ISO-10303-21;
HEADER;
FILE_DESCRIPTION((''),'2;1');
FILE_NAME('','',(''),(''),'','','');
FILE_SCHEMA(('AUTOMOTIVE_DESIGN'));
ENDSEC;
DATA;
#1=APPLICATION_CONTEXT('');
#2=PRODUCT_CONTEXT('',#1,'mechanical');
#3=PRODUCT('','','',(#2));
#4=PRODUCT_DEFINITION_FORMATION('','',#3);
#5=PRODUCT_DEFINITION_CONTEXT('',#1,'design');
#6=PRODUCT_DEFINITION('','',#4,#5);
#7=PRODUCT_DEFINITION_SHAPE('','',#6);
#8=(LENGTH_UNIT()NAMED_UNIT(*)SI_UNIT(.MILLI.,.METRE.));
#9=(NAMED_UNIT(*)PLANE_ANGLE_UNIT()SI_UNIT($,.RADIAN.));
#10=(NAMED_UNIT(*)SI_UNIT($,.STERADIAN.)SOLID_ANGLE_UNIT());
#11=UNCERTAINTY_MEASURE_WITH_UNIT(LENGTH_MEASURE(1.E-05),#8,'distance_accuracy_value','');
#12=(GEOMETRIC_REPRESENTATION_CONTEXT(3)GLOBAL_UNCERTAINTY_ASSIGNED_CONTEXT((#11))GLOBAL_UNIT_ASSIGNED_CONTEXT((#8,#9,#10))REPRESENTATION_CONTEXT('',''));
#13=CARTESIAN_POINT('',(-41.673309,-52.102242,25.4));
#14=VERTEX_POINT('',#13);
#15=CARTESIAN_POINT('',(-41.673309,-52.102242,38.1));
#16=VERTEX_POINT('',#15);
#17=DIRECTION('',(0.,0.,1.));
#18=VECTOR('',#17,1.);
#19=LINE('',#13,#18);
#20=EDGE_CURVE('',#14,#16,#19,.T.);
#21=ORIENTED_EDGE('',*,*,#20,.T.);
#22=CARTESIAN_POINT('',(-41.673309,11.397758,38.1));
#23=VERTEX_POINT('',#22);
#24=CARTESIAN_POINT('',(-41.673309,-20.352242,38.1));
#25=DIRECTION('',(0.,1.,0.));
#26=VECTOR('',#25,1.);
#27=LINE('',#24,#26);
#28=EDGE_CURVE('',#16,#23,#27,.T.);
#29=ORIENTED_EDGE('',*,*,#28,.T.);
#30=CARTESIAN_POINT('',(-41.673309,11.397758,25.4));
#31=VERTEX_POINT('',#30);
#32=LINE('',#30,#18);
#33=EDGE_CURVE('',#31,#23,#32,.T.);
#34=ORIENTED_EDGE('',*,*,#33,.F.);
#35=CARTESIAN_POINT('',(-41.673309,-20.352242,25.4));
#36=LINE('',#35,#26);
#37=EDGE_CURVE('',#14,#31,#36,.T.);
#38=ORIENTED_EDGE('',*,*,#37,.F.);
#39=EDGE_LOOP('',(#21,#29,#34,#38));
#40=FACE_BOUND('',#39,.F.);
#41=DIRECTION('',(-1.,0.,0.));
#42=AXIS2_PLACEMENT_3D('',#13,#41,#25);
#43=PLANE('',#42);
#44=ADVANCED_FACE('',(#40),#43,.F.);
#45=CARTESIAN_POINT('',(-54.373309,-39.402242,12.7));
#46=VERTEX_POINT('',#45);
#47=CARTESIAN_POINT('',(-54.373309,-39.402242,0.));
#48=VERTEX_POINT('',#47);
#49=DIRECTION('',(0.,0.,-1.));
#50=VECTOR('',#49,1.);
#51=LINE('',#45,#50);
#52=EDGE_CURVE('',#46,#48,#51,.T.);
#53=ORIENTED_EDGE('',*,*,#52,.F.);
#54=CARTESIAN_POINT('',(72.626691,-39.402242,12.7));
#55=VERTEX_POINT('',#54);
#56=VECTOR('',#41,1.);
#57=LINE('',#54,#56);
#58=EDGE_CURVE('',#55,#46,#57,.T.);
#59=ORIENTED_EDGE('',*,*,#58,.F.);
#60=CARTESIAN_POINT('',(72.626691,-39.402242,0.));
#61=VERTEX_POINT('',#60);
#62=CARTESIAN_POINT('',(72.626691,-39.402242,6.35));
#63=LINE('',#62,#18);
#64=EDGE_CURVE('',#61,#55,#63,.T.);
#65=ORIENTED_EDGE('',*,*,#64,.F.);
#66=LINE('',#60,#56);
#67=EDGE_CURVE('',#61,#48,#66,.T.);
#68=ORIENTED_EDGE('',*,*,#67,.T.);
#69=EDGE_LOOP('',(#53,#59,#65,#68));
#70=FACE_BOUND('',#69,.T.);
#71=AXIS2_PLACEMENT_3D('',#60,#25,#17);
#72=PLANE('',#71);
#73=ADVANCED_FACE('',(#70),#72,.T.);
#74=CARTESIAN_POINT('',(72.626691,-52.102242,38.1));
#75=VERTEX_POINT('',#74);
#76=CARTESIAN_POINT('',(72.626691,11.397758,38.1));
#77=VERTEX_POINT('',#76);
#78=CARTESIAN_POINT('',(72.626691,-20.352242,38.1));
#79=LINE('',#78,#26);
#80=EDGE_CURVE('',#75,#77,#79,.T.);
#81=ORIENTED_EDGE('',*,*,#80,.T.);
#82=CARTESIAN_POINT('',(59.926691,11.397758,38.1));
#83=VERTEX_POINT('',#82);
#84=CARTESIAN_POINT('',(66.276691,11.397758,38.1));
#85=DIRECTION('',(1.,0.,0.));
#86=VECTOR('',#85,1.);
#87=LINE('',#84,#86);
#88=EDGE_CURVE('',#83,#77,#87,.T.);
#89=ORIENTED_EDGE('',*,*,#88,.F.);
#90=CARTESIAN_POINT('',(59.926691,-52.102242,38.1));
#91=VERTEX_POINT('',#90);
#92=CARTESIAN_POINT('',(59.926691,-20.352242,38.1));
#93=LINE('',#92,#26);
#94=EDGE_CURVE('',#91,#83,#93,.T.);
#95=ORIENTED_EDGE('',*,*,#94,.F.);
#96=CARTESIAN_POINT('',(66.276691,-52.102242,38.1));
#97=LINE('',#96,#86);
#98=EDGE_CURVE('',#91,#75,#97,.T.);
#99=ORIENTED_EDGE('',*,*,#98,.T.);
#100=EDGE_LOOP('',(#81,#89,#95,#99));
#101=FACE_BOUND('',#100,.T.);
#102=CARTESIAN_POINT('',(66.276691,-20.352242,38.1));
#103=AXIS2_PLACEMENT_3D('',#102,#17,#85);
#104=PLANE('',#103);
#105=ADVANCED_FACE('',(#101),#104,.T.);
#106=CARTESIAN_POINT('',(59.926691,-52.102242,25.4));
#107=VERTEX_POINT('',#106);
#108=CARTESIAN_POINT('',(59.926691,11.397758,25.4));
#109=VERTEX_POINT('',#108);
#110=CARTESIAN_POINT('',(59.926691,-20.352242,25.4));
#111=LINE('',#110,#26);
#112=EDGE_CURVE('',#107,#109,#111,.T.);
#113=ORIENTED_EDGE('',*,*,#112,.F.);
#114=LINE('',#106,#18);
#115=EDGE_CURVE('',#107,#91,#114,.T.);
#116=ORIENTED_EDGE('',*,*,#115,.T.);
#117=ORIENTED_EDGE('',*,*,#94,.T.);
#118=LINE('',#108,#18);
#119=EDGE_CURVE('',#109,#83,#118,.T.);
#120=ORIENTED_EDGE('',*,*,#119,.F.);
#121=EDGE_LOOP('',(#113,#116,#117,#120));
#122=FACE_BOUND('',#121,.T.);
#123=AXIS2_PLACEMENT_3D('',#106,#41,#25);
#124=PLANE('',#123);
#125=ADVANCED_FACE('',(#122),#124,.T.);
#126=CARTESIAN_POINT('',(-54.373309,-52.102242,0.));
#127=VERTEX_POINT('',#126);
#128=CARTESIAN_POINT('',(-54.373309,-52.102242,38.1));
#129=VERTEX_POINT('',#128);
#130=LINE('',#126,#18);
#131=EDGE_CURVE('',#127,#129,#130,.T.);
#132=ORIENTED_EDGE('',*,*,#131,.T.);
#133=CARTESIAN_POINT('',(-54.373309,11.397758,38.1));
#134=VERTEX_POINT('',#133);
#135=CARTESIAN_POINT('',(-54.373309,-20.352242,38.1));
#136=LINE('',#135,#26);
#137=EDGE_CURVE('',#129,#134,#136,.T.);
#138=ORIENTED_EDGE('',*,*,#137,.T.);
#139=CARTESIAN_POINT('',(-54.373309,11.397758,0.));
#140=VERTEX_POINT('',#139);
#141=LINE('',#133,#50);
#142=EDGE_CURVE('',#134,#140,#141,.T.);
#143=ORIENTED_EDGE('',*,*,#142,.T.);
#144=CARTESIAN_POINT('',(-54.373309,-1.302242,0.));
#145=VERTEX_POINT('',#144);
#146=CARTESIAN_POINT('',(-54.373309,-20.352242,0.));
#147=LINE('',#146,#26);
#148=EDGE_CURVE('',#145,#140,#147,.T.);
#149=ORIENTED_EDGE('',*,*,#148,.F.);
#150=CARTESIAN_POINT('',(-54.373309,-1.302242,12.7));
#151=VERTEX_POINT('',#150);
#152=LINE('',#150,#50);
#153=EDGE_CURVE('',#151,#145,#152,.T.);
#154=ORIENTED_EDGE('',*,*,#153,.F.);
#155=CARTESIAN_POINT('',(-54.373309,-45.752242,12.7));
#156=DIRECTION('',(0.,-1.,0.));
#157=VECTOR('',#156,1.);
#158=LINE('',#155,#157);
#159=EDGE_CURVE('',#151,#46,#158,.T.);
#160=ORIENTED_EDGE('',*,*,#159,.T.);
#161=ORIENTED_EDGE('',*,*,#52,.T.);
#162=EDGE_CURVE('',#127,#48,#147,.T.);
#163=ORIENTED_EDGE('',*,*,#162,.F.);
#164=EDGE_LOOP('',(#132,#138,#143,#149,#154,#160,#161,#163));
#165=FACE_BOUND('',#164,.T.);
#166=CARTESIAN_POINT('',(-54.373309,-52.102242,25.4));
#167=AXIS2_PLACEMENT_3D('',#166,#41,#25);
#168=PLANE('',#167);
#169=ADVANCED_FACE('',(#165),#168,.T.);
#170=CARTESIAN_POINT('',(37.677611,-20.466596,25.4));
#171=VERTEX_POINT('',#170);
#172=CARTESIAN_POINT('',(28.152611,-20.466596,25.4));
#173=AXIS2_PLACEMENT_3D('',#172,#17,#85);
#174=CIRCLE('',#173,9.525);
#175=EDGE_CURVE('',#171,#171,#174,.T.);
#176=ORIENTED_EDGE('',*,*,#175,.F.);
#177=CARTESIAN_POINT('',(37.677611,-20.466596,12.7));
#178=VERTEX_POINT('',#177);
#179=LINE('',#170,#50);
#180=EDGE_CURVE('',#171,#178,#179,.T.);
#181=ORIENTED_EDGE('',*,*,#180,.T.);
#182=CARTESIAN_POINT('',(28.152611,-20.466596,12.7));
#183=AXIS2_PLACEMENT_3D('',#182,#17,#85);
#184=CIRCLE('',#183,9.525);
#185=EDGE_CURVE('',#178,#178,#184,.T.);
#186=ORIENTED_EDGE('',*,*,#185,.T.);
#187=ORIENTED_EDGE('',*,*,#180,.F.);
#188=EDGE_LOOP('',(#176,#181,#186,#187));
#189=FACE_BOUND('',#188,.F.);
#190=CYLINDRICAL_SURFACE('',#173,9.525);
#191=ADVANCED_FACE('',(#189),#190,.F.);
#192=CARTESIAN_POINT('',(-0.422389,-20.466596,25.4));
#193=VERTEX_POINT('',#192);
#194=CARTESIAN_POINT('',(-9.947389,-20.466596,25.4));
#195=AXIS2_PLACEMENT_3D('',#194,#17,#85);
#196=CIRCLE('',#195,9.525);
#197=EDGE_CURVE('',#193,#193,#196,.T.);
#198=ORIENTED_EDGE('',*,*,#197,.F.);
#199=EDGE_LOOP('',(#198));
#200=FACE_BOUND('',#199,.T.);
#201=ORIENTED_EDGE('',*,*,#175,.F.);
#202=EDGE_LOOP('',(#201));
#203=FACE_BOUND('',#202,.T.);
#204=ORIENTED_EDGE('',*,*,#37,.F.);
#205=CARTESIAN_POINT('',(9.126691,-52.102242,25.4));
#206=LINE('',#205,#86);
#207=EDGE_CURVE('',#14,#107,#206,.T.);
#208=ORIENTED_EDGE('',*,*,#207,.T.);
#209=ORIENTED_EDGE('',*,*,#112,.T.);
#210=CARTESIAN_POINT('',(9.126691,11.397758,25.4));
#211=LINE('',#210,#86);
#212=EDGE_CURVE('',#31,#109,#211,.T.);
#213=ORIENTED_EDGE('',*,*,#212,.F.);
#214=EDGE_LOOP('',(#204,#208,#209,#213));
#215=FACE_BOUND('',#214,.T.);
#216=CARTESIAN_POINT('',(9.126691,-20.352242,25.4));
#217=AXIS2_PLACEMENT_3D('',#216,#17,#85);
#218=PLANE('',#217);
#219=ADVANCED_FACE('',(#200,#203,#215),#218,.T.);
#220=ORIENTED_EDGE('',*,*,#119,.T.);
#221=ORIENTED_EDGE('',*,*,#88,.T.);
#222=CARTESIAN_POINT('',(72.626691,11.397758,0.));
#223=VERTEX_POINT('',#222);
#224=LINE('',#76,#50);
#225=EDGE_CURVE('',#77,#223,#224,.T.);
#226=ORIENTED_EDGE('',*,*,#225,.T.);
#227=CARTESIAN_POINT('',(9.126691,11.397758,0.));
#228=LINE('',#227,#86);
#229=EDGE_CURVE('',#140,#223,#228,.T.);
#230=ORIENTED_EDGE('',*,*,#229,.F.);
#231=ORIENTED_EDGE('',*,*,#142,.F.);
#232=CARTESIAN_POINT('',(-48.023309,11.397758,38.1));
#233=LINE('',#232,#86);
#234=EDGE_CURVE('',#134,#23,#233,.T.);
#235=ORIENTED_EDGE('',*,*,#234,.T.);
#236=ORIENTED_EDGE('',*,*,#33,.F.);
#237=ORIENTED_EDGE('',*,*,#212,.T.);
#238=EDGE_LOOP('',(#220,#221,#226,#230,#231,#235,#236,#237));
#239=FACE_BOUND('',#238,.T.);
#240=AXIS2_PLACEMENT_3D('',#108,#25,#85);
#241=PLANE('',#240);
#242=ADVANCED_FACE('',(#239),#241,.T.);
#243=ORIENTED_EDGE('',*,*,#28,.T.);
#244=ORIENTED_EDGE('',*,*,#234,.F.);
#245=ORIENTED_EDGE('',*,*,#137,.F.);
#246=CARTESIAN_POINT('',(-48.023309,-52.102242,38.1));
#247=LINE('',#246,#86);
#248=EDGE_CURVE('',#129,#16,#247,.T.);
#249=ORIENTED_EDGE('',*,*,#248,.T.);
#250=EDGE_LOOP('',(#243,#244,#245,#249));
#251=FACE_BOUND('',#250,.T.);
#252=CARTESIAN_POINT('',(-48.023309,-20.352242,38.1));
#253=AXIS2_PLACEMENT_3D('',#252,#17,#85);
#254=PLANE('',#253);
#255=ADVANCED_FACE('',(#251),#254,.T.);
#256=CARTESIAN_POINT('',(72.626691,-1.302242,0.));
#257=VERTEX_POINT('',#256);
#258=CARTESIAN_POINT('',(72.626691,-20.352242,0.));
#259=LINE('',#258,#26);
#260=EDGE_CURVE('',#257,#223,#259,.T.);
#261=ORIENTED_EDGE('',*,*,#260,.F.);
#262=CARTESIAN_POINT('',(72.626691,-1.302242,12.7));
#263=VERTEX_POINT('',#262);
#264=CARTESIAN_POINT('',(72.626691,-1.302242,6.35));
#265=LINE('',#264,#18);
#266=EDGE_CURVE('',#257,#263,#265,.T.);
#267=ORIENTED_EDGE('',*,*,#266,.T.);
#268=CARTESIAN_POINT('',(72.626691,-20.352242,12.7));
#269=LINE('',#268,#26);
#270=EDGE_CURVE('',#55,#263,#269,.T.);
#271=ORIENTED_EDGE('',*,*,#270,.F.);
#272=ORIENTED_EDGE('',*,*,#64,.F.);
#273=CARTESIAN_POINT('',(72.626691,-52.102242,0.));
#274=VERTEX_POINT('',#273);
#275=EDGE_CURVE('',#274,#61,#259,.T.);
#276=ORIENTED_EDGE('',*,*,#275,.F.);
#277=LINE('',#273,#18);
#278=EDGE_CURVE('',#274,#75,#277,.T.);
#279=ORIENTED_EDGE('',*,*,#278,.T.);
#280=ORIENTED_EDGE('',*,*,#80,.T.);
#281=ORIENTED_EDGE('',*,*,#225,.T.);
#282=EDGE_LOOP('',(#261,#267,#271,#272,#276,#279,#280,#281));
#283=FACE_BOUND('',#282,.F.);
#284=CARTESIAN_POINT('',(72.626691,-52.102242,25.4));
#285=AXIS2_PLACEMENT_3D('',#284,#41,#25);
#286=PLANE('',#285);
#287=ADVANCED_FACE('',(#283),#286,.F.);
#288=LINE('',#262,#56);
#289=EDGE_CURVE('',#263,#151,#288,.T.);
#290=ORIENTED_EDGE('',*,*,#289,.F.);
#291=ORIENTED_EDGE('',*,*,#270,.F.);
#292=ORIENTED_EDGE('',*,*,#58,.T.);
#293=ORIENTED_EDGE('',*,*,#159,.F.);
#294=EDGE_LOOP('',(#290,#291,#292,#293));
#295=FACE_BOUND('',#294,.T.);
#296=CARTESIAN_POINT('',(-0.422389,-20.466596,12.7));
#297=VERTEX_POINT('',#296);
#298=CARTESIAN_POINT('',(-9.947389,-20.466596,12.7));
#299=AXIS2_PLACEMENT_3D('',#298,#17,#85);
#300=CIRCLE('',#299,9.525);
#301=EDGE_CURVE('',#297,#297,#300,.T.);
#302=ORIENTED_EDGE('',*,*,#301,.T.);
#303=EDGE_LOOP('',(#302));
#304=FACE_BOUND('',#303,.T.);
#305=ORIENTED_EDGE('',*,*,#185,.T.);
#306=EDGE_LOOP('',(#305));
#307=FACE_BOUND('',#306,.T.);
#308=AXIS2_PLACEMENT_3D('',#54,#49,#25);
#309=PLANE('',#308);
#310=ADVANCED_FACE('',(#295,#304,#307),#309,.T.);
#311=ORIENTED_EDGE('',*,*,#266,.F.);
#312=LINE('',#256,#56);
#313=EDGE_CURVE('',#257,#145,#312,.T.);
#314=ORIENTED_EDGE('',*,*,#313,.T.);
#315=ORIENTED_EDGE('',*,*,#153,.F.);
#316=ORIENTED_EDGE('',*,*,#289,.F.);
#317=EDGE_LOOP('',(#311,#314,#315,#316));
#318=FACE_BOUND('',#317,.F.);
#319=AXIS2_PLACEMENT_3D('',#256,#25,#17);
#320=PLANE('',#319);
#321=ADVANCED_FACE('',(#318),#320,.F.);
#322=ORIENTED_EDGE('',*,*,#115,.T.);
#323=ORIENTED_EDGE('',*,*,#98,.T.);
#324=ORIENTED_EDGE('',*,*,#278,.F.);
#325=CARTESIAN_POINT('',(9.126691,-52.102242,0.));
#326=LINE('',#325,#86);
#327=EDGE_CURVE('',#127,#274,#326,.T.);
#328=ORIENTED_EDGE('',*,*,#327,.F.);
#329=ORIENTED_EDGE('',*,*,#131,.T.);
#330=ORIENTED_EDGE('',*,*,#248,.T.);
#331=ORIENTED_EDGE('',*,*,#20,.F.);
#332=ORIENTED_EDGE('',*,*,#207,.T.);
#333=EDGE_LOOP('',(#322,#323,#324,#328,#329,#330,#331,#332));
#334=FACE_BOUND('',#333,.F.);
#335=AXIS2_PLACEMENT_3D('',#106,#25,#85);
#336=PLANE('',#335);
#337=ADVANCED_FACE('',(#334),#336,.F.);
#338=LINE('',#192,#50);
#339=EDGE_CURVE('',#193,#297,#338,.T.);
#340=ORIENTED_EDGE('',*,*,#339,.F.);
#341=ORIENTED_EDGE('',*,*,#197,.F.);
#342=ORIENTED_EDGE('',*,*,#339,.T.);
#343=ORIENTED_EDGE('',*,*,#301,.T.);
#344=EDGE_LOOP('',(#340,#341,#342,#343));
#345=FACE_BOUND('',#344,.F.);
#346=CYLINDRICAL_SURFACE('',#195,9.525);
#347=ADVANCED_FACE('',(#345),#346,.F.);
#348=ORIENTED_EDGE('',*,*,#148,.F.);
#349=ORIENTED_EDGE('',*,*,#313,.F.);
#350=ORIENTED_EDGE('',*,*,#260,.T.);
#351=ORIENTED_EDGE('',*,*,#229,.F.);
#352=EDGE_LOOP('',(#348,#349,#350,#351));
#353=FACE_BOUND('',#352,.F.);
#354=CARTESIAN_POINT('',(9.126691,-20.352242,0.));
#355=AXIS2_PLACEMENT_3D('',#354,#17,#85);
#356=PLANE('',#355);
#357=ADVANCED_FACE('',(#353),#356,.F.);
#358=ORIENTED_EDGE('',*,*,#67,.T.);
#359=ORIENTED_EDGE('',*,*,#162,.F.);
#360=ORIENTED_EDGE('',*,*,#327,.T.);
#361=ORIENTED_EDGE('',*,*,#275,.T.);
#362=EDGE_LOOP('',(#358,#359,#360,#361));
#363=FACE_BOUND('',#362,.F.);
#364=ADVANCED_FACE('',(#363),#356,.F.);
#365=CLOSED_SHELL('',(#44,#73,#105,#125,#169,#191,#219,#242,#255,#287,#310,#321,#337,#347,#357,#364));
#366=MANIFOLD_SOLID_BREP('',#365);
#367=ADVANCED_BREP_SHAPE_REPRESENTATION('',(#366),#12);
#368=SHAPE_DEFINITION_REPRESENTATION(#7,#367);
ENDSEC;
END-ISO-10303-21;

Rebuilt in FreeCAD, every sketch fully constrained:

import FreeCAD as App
import Part
import Sketcher
from FreeCAD import Vector
Q = App.Units.Quantity

doc = App.newDocument("Part")
body = doc.addObject("PartDesign::Body", "Body")

# Sketch on XY plane
sketch1 = body.newObject("Sketcher::SketchObject", "Sketch")
sketch1.AttachmentSupport = (doc.getObject("XY_Plane"), [""])
sketch1.MapMode = "FlatFace"
sketch1.addGeometry(Part.LineSegment(Vector(-54, 11, 0), Vector(-54, -52, 0)), False)
sketch1.addGeometry(Part.LineSegment(Vector(-54, -52, 0), Vector(73, -52, 0)), False)
sketch1.addGeometry(Part.LineSegment(Vector(73, -52, 0), Vector(73, 11, 0)), False)
sketch1.addGeometry(Part.LineSegment(Vector(73, 11, 0), Vector(-54, 11, 0)), False)
sketch1.addConstraint(Sketcher.Constraint("Coincident", 0, 2, 1, 1))
sketch1.addConstraint(Sketcher.Constraint("Coincident", 1, 2, 2, 1))
sketch1.addConstraint(Sketcher.Constraint("Coincident", 2, 2, 3, 1))
sketch1.addConstraint(Sketcher.Constraint("Coincident", 3, 2, 0, 1))
sketch1.addConstraint(Sketcher.Constraint("Vertical", 0))
sketch1.addConstraint(Sketcher.Constraint("Horizontal", 1))
sketch1.addConstraint(Sketcher.Constraint("Vertical", 2))
sketch1.addConstraint(Sketcher.Constraint("Horizontal", 3))
sketch1.addConstraint(Sketcher.Constraint("DistanceX", 1, 1, 1, 2, Q("5 in")))
sketch1.addConstraint(Sketcher.Constraint("DistanceY", 0, 2, 0, 1, Q("2.5 in")))
sketch1.addConstraint(Sketcher.Constraint("DistanceX", 0, 2, -1, 1, Q("54.373309 mm")))
sketch1.addConstraint(Sketcher.Constraint("DistanceY", 0, 2, -1, 1, Q("52.102242 mm")))
pad1 = body.newObject("PartDesign::Pad", "Pad")
pad1.Profile = sketch1
pad1.Length = Q("1 in")

# Sketch on XY plane
sketch2 = body.newObject("Sketcher::SketchObject", "Sketch001")
sketch2.AttachmentSupport = (doc.getObject("XY_Plane"), [""])
sketch2.MapMode = "FlatFace"
sketch2.AttachmentOffset = App.Placement(Vector(0, 0, 1 * 25.4), App.Rotation())
sketch2.addGeometry(Part.LineSegment(Vector(-54, 11, 0), Vector(-54, -52, 0)), False)
sketch2.addGeometry(Part.LineSegment(Vector(-54, -52, 0), Vector(-42, -52, 0)), False)
sketch2.addGeometry(Part.LineSegment(Vector(-42, -52, 0), Vector(-42, 11, 0)), False)
sketch2.addGeometry(Part.LineSegment(Vector(-42, 11, 0), Vector(-54, 11, 0)), False)
sketch2.addConstraint(Sketcher.Constraint("Coincident", 0, 2, 1, 1))
sketch2.addConstraint(Sketcher.Constraint("Coincident", 1, 2, 2, 1))
sketch2.addConstraint(Sketcher.Constraint("Coincident", 2, 2, 3, 1))
sketch2.addConstraint(Sketcher.Constraint("Coincident", 3, 2, 0, 1))
sketch2.addConstraint(Sketcher.Constraint("Vertical", 0))
sketch2.addConstraint(Sketcher.Constraint("Horizontal", 1))
sketch2.addConstraint(Sketcher.Constraint("Vertical", 2))
sketch2.addConstraint(Sketcher.Constraint("Horizontal", 3))
sketch2.addConstraint(Sketcher.Constraint("DistanceX", 1, 1, 1, 2, Q("0.5 in")))
sketch2.addConstraint(Sketcher.Constraint("DistanceY", 0, 2, 0, 1, Q("2.5 in")))
sketch2.addConstraint(Sketcher.Constraint("DistanceX", 0, 2, -1, 1, Q("54.373309 mm")))
sketch2.addConstraint(Sketcher.Constraint("DistanceY", 0, 2, -1, 1, Q("52.102242 mm")))
pad2 = body.newObject("PartDesign::Pad", "Pad001")
pad2.Profile = sketch2
pad2.Length = Q("0.5 in")

# Sketch on XY plane
sketch3 = body.newObject("Sketcher::SketchObject", "Sketch002")
sketch3.AttachmentSupport = (doc.getObject("XY_Plane"), [""])
sketch3.MapMode = "FlatFace"
sketch3.AttachmentOffset = App.Placement(Vector(0, 0, 1 * 25.4), App.Rotation())
sketch3.addGeometry(Part.LineSegment(Vector(60, 11, 0), Vector(60, -52, 0)), False)
sketch3.addGeometry(Part.LineSegment(Vector(60, -52, 0), Vector(73, -52, 0)), False)
sketch3.addGeometry(Part.LineSegment(Vector(73, -52, 0), Vector(73, 11, 0)), False)
sketch3.addGeometry(Part.LineSegment(Vector(73, 11, 0), Vector(60, 11, 0)), False)
sketch3.addConstraint(Sketcher.Constraint("Coincident", 0, 2, 1, 1))
sketch3.addConstraint(Sketcher.Constraint("Coincident", 1, 2, 2, 1))
sketch3.addConstraint(Sketcher.Constraint("Coincident", 2, 2, 3, 1))
sketch3.addConstraint(Sketcher.Constraint("Coincident", 3, 2, 0, 1))
sketch3.addConstraint(Sketcher.Constraint("Vertical", 0))
sketch3.addConstraint(Sketcher.Constraint("Horizontal", 1))
sketch3.addConstraint(Sketcher.Constraint("Vertical", 2))
sketch3.addConstraint(Sketcher.Constraint("Horizontal", 3))
sketch3.addConstraint(Sketcher.Constraint("DistanceX", 1, 1, 1, 2, Q("0.5 in")))
sketch3.addConstraint(Sketcher.Constraint("DistanceY", 0, 2, 0, 1, Q("2.5 in")))
sketch3.addConstraint(Sketcher.Constraint("DistanceX", -1, 1, 0, 2, Q("59.926691 mm")))
sketch3.addConstraint(Sketcher.Constraint("DistanceY", 0, 2, -1, 1, Q("52.102242 mm")))
pad3 = body.newObject("PartDesign::Pad", "Pad002")
pad3.Profile = sketch3
pad3.Length = Q("0.5 in")

# Sketch on XY plane
sketch4 = body.newObject("Sketcher::SketchObject", "Sketch003")
sketch4.AttachmentSupport = (doc.getObject("XY_Plane"), [""])
sketch4.MapMode = "FlatFace"
sketch4.AttachmentOffset = App.Placement(Vector(0, 0, 1 * 25.4), App.Rotation())
sketch4.addGeometry(Part.Circle(Vector(-10, -20, 0), Vector(0, 0, 1), 10), False)
sketch4.addGeometry(Part.Circle(Vector(28, -20, 0), Vector(0, 0, 1), 10), False)
sketch4.addConstraint(Sketcher.Constraint("Equal", 0, 1))
sketch4.addConstraint(Sketcher.Constraint("Horizontal", 0, 3, 1, 3))
sketch4.addConstraint(Sketcher.Constraint("Diameter", 0, Q("0.75 in")))
sketch4.addConstraint(Sketcher.Constraint("DistanceX", 0, 3, 1, 3, Q("1.5 in")))
sketch4.addConstraint(Sketcher.Constraint("DistanceX", 0, 3, -1, 1, Q("9.947389 mm")))
sketch4.addConstraint(Sketcher.Constraint("DistanceY", 0, 3, -1, 1, Q("20.466596 mm")))
pocket1 = body.newObject("PartDesign::Pocket", "Pocket")
pocket1.Profile = sketch4
pocket1.Type = "ThroughAll"

# Sketch on YZ plane
sketch5 = body.newObject("Sketcher::SketchObject", "Sketch004")
sketch5.AttachmentSupport = (doc.getObject("YZ_Plane"), [""])
sketch5.MapMode = "FlatFace"
sketch5.AttachmentOffset = App.Placement(Vector(0, 0, 72.626691), App.Rotation())
sketch5.addGeometry(Part.LineSegment(Vector(-39, 13, 0), Vector(-39, 0, 0)), False)
sketch5.addGeometry(Part.LineSegment(Vector(-39, 0, 0), Vector(-1, 0, 0)), False)
sketch5.addGeometry(Part.LineSegment(Vector(-1, 0, 0), Vector(-1, 13, 0)), False)
sketch5.addGeometry(Part.LineSegment(Vector(-1, 13, 0), Vector(-39, 13, 0)), False)
sketch5.addConstraint(Sketcher.Constraint("Coincident", 0, 2, 1, 1))
sketch5.addConstraint(Sketcher.Constraint("Coincident", 1, 2, 2, 1))
sketch5.addConstraint(Sketcher.Constraint("Coincident", 2, 2, 3, 1))
sketch5.addConstraint(Sketcher.Constraint("Coincident", 3, 2, 0, 1))
sketch5.addConstraint(Sketcher.Constraint("Vertical", 0))
sketch5.addConstraint(Sketcher.Constraint("Horizontal", 1))
sketch5.addConstraint(Sketcher.Constraint("Vertical", 2))
sketch5.addConstraint(Sketcher.Constraint("Horizontal", 3))
sketch5.addConstraint(Sketcher.Constraint("PointOnObject", 0, 2, -1))
sketch5.addConstraint(Sketcher.Constraint("DistanceX", 1, 1, 1, 2, Q("1.5 in")))
sketch5.addConstraint(Sketcher.Constraint("DistanceY", 0, 2, 0, 1, Q("0.5 in")))
sketch5.addConstraint(Sketcher.Constraint("DistanceX", 1, 2, -1, 1, Q("1.302242 mm")))
pocket2 = body.newObject("PartDesign::Pocket", "Pocket001")
pocket2.Profile = sketch5
pocket2.Type = "ThroughAll"

doc.recompute()
